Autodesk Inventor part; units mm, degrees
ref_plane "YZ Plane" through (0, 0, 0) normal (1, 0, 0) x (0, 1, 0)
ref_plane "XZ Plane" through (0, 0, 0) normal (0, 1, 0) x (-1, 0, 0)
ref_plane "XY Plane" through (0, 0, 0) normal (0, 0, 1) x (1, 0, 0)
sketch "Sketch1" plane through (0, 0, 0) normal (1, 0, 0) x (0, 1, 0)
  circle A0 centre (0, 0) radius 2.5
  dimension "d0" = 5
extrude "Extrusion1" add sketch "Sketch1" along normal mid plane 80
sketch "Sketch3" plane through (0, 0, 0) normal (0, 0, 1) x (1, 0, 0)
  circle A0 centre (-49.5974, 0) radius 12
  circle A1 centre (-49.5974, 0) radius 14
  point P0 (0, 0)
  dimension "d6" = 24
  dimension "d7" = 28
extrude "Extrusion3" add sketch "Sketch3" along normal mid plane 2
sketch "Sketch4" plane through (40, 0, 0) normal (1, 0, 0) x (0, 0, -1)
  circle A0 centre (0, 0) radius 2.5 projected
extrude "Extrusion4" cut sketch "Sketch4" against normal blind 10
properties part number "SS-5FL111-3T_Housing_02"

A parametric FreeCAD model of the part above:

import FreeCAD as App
import Part
import Sketcher
Q = App.Units.Quantity

doc = App.newDocument("Part")
params = doc.addObject("Spreadsheet::Sheet", "Params")
for row, (alias, value) in enumerate([
    ("sketch1_diameter", "5 mm"),
    ("pad1_length", "80 mm"),
    ("sketch2_diameter", "28 mm"),
    ("sketch2_diameter2", "24 mm"),
    ("pad2_length", "2 mm"),
    ("sketch3_diameter", "5 mm"),
    ("pocket1_length", "10 mm"),
], start=1):
    params.set(f"A{row}", alias)
    params.set(f"B{row}", "=" + value)
    params.setAlias(f"B{row}", alias)

body = doc.addObject("PartDesign::Body", "Body")

# Sketch on YZ plane
sketch1 = body.newObject("Sketcher::SketchObject", "Sketch")
sketch1.AttachmentSupport = (doc.getObject("YZ_Plane"), [""])
sketch1.MapMode = "FlatFace"
sketch1.addGeometry(Part.Circle(App.Vector(0, 0, 0), App.Vector(0, 0, 1), 2.5), False)
sketch1.addConstraint([
    Sketcher.Constraint("Coincident", 0, 3, -1, 1),
    Sketcher.Constraint("Diameter", 0, Q("5 mm")),
])
sketch1.setExpression("Constraints[1]", "Params.sketch1_diameter")
pad1 = body.newObject("PartDesign::Pad", "Pad")
pad1.Profile = sketch1
pad1.setExpression("Length", "Params.pad1_length")
pad1.Midplane = True

# Sketch on XY plane
sketch2 = body.newObject("Sketcher::SketchObject", "Sketch001")
sketch2.AttachmentSupport = (doc.getObject("XY_Plane"), [""])
sketch2.MapMode = "FlatFace"
sketch2.addGeometry([
    Part.Circle(App.Vector(-50, 0, 0), App.Vector(0, 0, 1), 14),
    Part.Circle(App.Vector(-50, 0, 0), App.Vector(0, 0, 1), 12),
], False)
sketch2.addConstraint([
    Sketcher.Constraint("Coincident", 1, 3, 0, 3),
    Sketcher.Constraint("PointOnObject", 0, 3, -1),
    Sketcher.Constraint("Diameter", 0, Q("28 mm")),
    Sketcher.Constraint("Diameter", 1, Q("24 mm")),
    Sketcher.Constraint("DistanceX", 0, 3, -1, 1, Q("49.5974 mm")),
])
sketch2.setExpression("Constraints[2]", "Params.sketch2_diameter")
sketch2.setExpression("Constraints[3]", "Params.sketch2_diameter2")
pad2 = body.newObject("PartDesign::Pad", "Pad001")
pad2.Profile = sketch2
pad2.setExpression("Length", "Params.pad2_length")
pad2.Midplane = True

# Sketch on YZ plane
sketch3 = body.newObject("Sketcher::SketchObject", "Sketch002")
sketch3.AttachmentSupport = (doc.getObject("YZ_Plane"), [""])
sketch3.MapMode = "FlatFace"
sketch3.AttachmentOffset = App.Placement(App.Vector(0, 0, 40), App.Rotation())
sketch3.addGeometry(Part.Circle(App.Vector(0, 0, 0), App.Vector(0, 0, 1), 2.5), False)
sketch3.addConstraint([
    Sketcher.Constraint("Coincident", 0, 3, -1, 1),
    Sketcher.Constraint("Diameter", 0, Q("5 mm")),
])
sketch3.setExpression("Constraints[1]", "Params.sketch3_diameter")
pocket1 = body.newObject("PartDesign::Pocket", "Pocket")
pocket1.Profile = sketch3
pocket1.setExpression("Length", "Params.pocket1_length")

doc.recompute()
